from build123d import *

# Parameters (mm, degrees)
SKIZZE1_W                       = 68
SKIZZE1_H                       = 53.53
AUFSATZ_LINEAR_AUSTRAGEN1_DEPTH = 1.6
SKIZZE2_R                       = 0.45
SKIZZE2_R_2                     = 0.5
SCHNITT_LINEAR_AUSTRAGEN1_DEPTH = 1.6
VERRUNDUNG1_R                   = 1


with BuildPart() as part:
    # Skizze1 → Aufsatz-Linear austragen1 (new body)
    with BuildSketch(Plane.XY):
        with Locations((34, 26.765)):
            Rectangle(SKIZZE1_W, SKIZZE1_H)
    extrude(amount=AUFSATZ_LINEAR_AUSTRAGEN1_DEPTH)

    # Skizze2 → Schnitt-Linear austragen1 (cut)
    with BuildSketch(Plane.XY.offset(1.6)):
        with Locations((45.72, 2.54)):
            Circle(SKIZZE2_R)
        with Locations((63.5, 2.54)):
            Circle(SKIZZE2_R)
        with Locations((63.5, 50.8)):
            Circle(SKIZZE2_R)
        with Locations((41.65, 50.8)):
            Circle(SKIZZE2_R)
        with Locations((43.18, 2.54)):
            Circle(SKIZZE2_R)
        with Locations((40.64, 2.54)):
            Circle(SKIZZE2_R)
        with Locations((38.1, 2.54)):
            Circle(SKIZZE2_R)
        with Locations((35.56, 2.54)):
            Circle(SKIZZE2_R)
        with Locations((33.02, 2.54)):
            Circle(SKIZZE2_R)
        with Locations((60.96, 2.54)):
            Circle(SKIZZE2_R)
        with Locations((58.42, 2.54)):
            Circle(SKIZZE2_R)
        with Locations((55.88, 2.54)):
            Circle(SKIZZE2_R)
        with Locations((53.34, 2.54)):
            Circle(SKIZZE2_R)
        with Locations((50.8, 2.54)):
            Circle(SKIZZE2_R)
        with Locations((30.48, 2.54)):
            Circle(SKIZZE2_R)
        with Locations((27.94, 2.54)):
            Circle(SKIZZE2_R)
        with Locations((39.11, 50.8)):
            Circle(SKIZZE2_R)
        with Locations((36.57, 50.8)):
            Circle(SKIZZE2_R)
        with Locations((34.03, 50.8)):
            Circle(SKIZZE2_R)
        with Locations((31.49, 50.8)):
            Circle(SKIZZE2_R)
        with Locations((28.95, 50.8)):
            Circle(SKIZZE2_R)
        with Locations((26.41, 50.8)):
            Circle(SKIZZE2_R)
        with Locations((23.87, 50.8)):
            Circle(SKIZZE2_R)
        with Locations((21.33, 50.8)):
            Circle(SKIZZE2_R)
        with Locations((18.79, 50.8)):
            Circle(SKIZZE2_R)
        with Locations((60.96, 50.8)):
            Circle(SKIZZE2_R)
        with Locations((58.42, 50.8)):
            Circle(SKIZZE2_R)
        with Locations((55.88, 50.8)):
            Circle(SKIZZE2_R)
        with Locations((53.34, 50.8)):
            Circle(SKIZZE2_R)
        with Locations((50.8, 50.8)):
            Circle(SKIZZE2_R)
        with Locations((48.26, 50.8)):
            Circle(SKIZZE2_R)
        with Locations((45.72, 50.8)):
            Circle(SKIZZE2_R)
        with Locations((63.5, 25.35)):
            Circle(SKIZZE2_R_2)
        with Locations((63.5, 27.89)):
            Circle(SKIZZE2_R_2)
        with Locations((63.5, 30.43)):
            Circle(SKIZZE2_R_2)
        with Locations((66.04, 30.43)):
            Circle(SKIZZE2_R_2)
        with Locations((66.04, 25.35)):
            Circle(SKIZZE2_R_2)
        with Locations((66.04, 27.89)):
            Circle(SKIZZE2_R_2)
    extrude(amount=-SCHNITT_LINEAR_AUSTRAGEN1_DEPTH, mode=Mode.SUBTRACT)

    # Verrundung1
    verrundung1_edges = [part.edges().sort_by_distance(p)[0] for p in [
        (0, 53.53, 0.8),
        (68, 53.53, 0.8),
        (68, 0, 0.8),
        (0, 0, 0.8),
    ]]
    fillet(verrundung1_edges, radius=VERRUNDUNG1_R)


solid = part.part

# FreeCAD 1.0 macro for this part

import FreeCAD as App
import Part
import Sketcher


def edges_at(feature, points):
    """Names of the edges that pass closest to the given points."""
    edges = feature.Shape.Edges
    near = lambda p: min(range(len(edges)), key=lambda i: edges[i].distToShape(Part.Vertex(*p))[0])
    return sorted({f"Edge{near(p) + 1}" for p in points})

doc = App.newDocument("Part")
body = doc.addObject("PartDesign::Body", "Body")

# Sketch on XY plane
sketch1 = body.newObject("Sketcher::SketchObject", "Sketch")
sketch1.AttachmentSupport = (doc.getObject("XY_Plane"), [""])
sketch1.MapMode = "FlatFace"
sketch1.addGeometry([
    Part.LineSegment(App.Vector(0, 54, 0), App.Vector(0, 0, 0)),
    Part.LineSegment(App.Vector(0, 0, 0), App.Vector(68, 0, 0)),
    Part.LineSegment(App.Vector(68, 0, 0), App.Vector(68, 54, 0)),
    Part.LineSegment(App.Vector(68, 54, 0), App.Vector(0, 54, 0)),
], False)
sketch1.addConstraint([
    Sketcher.Constraint("Coincident", 0, 2, 1, 1),
    Sketcher.Constraint("Coincident", 1, 2, 2, 1),
    Sketcher.Constraint("Coincident", 2, 2, 3, 1),
    Sketcher.Constraint("Coincident", 3, 2, 0, 1),
    Sketcher.Constraint("Vertical", 0),
    Sketcher.Constraint("Horizontal", 1),
    Sketcher.Constraint("Vertical", 2),
    Sketcher.Constraint("Horizontal", 3),
    Sketcher.Constraint("Coincident", 0, 2, -1, 1),
    Sketcher.Constraint("DistanceX", 1, 1, 1, 2, 68.0),
    Sketcher.Constraint("DistanceY", 0, 2, 0, 1, 53.53),
])
pad1 = body.newObject("PartDesign::Pad", "Pad")
pad1.Profile = sketch1
pad1.Length = 1.6

# Sketch on XY plane
sketch2 = body.newObject("Sketcher::SketchObject", "Sketch001")
sketch2.AttachmentSupport = (doc.getObject("XY_Plane"), [""])
sketch2.MapMode = "FlatFace"
sketch2.AttachmentOffset = App.Placement(App.Vector(0, 0, 1.6), App.Rotation())
sketch2.addGeometry([
    Part.Circle(App.Vector(45.72, 2.54, 0), App.Vector(0, 0, 1), 0.45),  # 0
    Part.Circle(App.Vector(63.5, 2.54, 0), App.Vector(0, 0, 1), 0.45),  # 1
    Part.Circle(App.Vector(63.5, 50.8, 0), App.Vector(0, 0, 1), 0.45),  # 2
    Part.Circle(App.Vector(41.65, 50.8, 0), App.Vector(0, 0, 1), 0.45),  # 3
    Part.Circle(App.Vector(43.18, 2.54, 0), App.Vector(0, 0, 1), 0.45),  # 4
    Part.Circle(App.Vector(40.64, 2.54, 0), App.Vector(0, 0, 1), 0.45),  # 5
    Part.Circle(App.Vector(38.1, 2.54, 0), App.Vector(0, 0, 1), 0.45),  # 6
    Part.Circle(App.Vector(35.56, 2.54, 0), App.Vector(0, 0, 1), 0.45),  # 7
    Part.Circle(App.Vector(33.02, 2.54, 0), App.Vector(0, 0, 1), 0.45),  # 8
    Part.Circle(App.Vector(60.96, 2.54, 0), App.Vector(0, 0, 1), 0.45),  # 9
    Part.Circle(App.Vector(58.42, 2.54, 0), App.Vector(0, 0, 1), 0.45),  # 10
    Part.Circle(App.Vector(55.88, 2.54, 0), App.Vector(0, 0, 1), 0.45),  # 11
    Part.Circle(App.Vector(53.34, 2.54, 0), App.Vector(0, 0, 1), 0.45),  # 12
    Part.Circle(App.Vector(50.8, 2.54, 0), App.Vector(0, 0, 1), 0.45),  # 13
    Part.Circle(App.Vector(30.48, 2.54, 0), App.Vector(0, 0, 1), 0.45),  # 14
    Part.Circle(App.Vector(27.94, 2.54, 0), App.Vector(0, 0, 1), 0.45),  # 15
    Part.Circle(App.Vector(39.11, 50.8, 0), App.Vector(0, 0, 1), 0.45),  # 16
    Part.Circle(App.Vector(36.57, 50.8, 0), App.Vector(0, 0, 1), 0.45),  # 17
    Part.Circle(App.Vector(34.03, 50.8, 0), App.Vector(0, 0, 1), 0.45),  # 18
    Part.Circle(App.Vector(31.49, 50.8, 0), App.Vector(0, 0, 1), 0.45),  # 19
    Part.Circle(App.Vector(28.95, 50.8, 0), App.Vector(0, 0, 1), 0.45),  # 20
    Part.Circle(App.Vector(26.41, 50.8, 0), App.Vector(0, 0, 1), 0.45),  # 21
    Part.Circle(App.Vector(23.87, 50.8, 0), App.Vector(0, 0, 1), 0.45),  # 22
    Part.Circle(App.Vector(21.33, 50.8, 0), App.Vector(0, 0, 1), 0.45),  # 23
    Part.Circle(App.Vector(18.79, 50.8, 0), App.Vector(0, 0, 1), 0.45),  # 24
    Part.Circle(App.Vector(60.96, 50.8, 0), App.Vector(0, 0, 1), 0.45),  # 25
    Part.Circle(App.Vector(58.42, 50.8, 0), App.Vector(0, 0, 1), 0.45),  # 26
    Part.Circle(App.Vector(55.88, 50.8, 0), App.Vector(0, 0, 1), 0.45),  # 27
    Part.Circle(App.Vector(53.34, 50.8, 0), App.Vector(0, 0, 1), 0.45),  # 28
    Part.Circle(App.Vector(50.8, 50.8, 0), App.Vector(0, 0, 1), 0.45),  # 29
    Part.Circle(App.Vector(48.26, 50.8, 0), App.Vector(0, 0, 1), 0.45),  # 30
    Part.Circle(App.Vector(45.72, 50.8, 0), App.Vector(0, 0, 1), 0.45),  # 31
    Part.Circle(App.Vector(63.5, 25.35, 0), App.Vector(0, 0, 1), 0.5),  # 32
    Part.Circle(App.Vector(63.5, 27.89, 0), App.Vector(0, 0, 1), 0.5),  # 33
    Part.Circle(App.Vector(63.5, 30.43, 0), App.Vector(0, 0, 1), 0.5),  # 34
    Part.Circle(App.Vector(66.04, 30.43, 0), App.Vector(0, 0, 1), 0.5),  # 35
    Part.Circle(App.Vector(66.04, 25.35, 0), App.Vector(0, 0, 1), 0.5),  # 36
    Part.Circle(App.Vector(66.04, 27.89, 0), App.Vector(0, 0, 1), 0.5),  # 37
], False)
sketch2.addConstraint([
    Sketcher.Constraint("Equal", 0, 1),
    Sketcher.Constraint("Equal", 1, 2),
    Sketcher.Constraint("Equal", 2, 3),
    Sketcher.Constraint("Equal", 3, 4),
    Sketcher.Constraint("Equal", 4, 5),
    Sketcher.Constraint("Equal", 5, 6),
    Sketcher.Constraint("Equal", 6, 7),
    Sketcher.Constraint("Equal", 7, 8),
    Sketcher.Constraint("Equal", 8, 9),
    Sketcher.Constraint("Equal", 9, 10),
    Sketcher.Constraint("Equal", 10, 11),
    Sketcher.Constraint("Equal", 11, 12),
    Sketcher.Constraint("Equal", 12, 13),
    Sketcher.Constraint("Equal", 13, 14),
    Sketcher.Constraint("Equal", 14, 15),
    Sketcher.Constraint("Equal", 15, 16),
    Sketcher.Constraint("Equal", 16, 17),
    Sketcher.Constraint("Equal", 17, 18),
    Sketcher.Constraint("Equal", 18, 19),
    Sketcher.Constraint("Equal", 19, 20),
    Sketcher.Constraint("Equal", 20, 21),
    Sketcher.Constraint("Equal", 21, 22),
    Sketcher.Constraint("Equal", 22, 23),
    Sketcher.Constraint("Equal", 23, 24),
    Sketcher.Constraint("Equal", 24, 25),
    Sketcher.Constraint("Equal", 25, 26),
    Sketcher.Constraint("Equal", 26, 27),
    Sketcher.Constraint("Equal", 27, 28),
    Sketcher.Constraint("Equal", 28, 29),
    Sketcher.Constraint("Equal", 29, 30),
    Sketcher.Constraint("Equal", 30, 31),
    Sketcher.Constraint("Equal", 32, 33),
    Sketcher.Constraint("Equal", 33, 34),
    Sketcher.Constraint("Equal", 34, 35),
    Sketcher.Constraint("Equal", 35, 36),
    Sketcher.Constraint("Equal", 36, 37),
    Sketcher.Constraint("Horizontal", 0, 3, 1, 3),
    Sketcher.Constraint("Horizontal", 2, 3, 3, 3),
    Sketcher.Constraint("Horizontal", 1, 3, 4, 3),
    Sketcher.Constraint("Horizontal", 4, 3, 5, 3),
    Sketcher.Constraint("Horizontal", 5, 3, 6, 3),
    Sketcher.Constraint("Horizontal", 6, 3, 7, 3),
    Sketcher.Constraint("Horizontal", 7, 3, 8, 3),
    Sketcher.Constraint("Horizontal", 8, 3, 9, 3),
    Sketcher.Constraint("Horizontal", 9, 3, 10, 3),
    Sketcher.Constraint("Horizontal", 10, 3, 11, 3),
    Sketcher.Constraint("Horizontal", 11, 3, 12, 3),
    Sketcher.Constraint("Horizontal", 12, 3, 13, 3),
    Sketcher.Constraint("Horizontal", 13, 3, 14, 3),
    Sketcher.Constraint("Horizontal", 14, 3, 15, 3),
    Sketcher.Constraint("Horizontal", 3, 3, 16, 3),
    Sketcher.Constraint("Horizontal", 16, 3, 17, 3),
    Sketcher.Constraint("Horizontal", 17, 3, 18, 3),
    Sketcher.Constraint("Horizontal", 18, 3, 19, 3),
    Sketcher.Constraint("Horizontal", 19, 3, 20, 3),
    Sketcher.Constraint("Horizontal", 20, 3, 21, 3),
    Sketcher.Constraint("Horizontal", 21, 3, 22, 3),
    Sketcher.Constraint("Horizontal", 22, 3, 23, 3),
    Sketcher.Constraint("Horizontal", 23, 3, 24, 3),
    Sketcher.Constraint("Horizontal", 24, 3, 25, 3),
    Sketcher.Constraint("Horizontal", 25, 3, 26, 3),
    Sketcher.Constraint("Horizontal", 26, 3, 27, 3),
    Sketcher.Constraint("Horizontal", 27, 3, 28, 3),
    Sketcher.Constraint("Horizontal", 28, 3, 29, 3),
    Sketcher.Constraint("Horizontal", 29, 3, 30, 3),
    Sketcher.Constraint("Horizontal", 30, 3, 31, 3),
    Sketcher.Constraint("Horizontal", 34, 3, 35, 3),
    Sketcher.Constraint("Horizontal", 32, 3, 36, 3),
    Sketcher.Constraint("Horizontal", 33, 3, 37, 3),
    Sketcher.Constraint("Vertical", 1, 3, 2, 3),
    Sketcher.Constraint("Vertical", 9, 3, 25, 3),
    Sketcher.Constraint("Vertical", 10, 3, 26, 3),
    Sketcher.Constraint("Vertical", 11, 3, 27, 3),
    Sketcher.Constraint("Vertical", 12, 3, 28, 3),
    Sketcher.Constraint("Vertical", 13, 3, 29, 3),
    Sketcher.Constraint("Vertical", 0, 3, 31, 3),
    Sketcher.Constraint("Vertical", 2, 3, 32, 3),
    Sketcher.Constraint("Vertical", 32, 3, 33, 3),
    Sketcher.Constraint("Vertical", 33, 3, 34, 3),
    Sketcher.Constraint("Vertical", 35, 3, 36, 3),
    Sketcher.Constraint("Vertical", 36, 3, 37, 3),
    Sketcher.Constraint("Diameter", 32, 1.0),
    Sketcher.Constraint("Diameter", 0, 0.9),
    Sketcher.Constraint("DistanceX", -1, 1, 1, 3, 63.5),
    Sketcher.Constraint("DistanceY", -1, 1, 2, 3, 50.8),
    Sketcher.Constraint("DistanceX", -1, 1, 6, 3, 38.1),
    Sketcher.Constraint("DistanceX", -1, 1, 13, 3, 50.8),
    Sketcher.Constraint("DistanceX", 8, 3, 0, 3, 12.7),
    Sketcher.Constraint("DistanceX", 0, 3, 10, 3, 12.7),
    Sketcher.Constraint("DistanceX", 4, 3, 11, 3, 12.7),
    Sketcher.Constraint("DistanceX", 14, 3, 4, 3, 12.7),
    Sketcher.Constraint("DistanceX", 15, 3, 5, 3, 12.7),
    Sketcher.Constraint("DistanceX", 20, 3, 3, 3, 12.7),
    Sketcher.Constraint("DistanceX", 21, 3, 16, 3, 12.7),
    Sketcher.Constraint("DistanceX", 22, 3, 17, 3, 12.7),
    Sketcher.Constraint("DistanceX", 23, 3, 18, 3, 12.7),
    Sketcher.Constraint("DistanceX", 24, 3, 19, 3, 12.7),
    Sketcher.Constraint("DistanceX", -1, 1, 0, 3, 45.72),
    Sketcher.Constraint("DistanceY", -1, 1, 0, 3, 2.54),
    Sketcher.Constraint("DistanceX", -1, 1, 3, 3, 41.65),
    Sketcher.Constraint("DistanceX", -1, 1, 4, 3, 43.18),
    Sketcher.Constraint("DistanceX", -1, 1, 5, 3, 40.64),
    Sketcher.Constraint("DistanceX", -1, 1, 7, 3, 35.56),
    Sketcher.Constraint("DistanceX", -1, 1, 9, 3, 60.96),
    Sketcher.Constraint("DistanceX", -1, 1, 12, 3, 53.34),
    Sketcher.Constraint("DistanceX", -1, 1, 16, 3, 39.11),
    Sketcher.Constraint("DistanceX", -1, 1, 17, 3, 36.57),
    Sketcher.Constraint("DistanceX", -1, 1, 18, 3, 34.03),
    Sketcher.Constraint("DistanceX", -1, 1, 19, 3, 31.49),
    Sketcher.Constraint("DistanceX", -1, 1, 30, 3, 48.26),
    Sketcher.Constraint("DistanceY", -1, 1, 32, 3, 25.35),
    Sketcher.Constraint("DistanceY", -1, 1, 33, 3, 27.89),
    Sketcher.Constraint("DistanceY", -1, 1, 34, 3, 30.43),
    Sketcher.Constraint("DistanceX", -1, 1, 35, 3, 66.04),
])
pocket1 = body.newObject("PartDesign::Pocket", "Pocket")
pocket1.Profile = sketch2
pocket1.Length = 1.6
doc.recompute()

fillet = body.newObject("PartDesign::Fillet", "Fillet")
fillet.Base = (pocket1, edges_at(pocket1, [
    (0, 53.53, 0.8),
    (68, 53.53, 0.8),
    (68, 0, 0.8),
    (0, 0, 0.8),
]))
fillet.Radius = 1

doc.recompute()
